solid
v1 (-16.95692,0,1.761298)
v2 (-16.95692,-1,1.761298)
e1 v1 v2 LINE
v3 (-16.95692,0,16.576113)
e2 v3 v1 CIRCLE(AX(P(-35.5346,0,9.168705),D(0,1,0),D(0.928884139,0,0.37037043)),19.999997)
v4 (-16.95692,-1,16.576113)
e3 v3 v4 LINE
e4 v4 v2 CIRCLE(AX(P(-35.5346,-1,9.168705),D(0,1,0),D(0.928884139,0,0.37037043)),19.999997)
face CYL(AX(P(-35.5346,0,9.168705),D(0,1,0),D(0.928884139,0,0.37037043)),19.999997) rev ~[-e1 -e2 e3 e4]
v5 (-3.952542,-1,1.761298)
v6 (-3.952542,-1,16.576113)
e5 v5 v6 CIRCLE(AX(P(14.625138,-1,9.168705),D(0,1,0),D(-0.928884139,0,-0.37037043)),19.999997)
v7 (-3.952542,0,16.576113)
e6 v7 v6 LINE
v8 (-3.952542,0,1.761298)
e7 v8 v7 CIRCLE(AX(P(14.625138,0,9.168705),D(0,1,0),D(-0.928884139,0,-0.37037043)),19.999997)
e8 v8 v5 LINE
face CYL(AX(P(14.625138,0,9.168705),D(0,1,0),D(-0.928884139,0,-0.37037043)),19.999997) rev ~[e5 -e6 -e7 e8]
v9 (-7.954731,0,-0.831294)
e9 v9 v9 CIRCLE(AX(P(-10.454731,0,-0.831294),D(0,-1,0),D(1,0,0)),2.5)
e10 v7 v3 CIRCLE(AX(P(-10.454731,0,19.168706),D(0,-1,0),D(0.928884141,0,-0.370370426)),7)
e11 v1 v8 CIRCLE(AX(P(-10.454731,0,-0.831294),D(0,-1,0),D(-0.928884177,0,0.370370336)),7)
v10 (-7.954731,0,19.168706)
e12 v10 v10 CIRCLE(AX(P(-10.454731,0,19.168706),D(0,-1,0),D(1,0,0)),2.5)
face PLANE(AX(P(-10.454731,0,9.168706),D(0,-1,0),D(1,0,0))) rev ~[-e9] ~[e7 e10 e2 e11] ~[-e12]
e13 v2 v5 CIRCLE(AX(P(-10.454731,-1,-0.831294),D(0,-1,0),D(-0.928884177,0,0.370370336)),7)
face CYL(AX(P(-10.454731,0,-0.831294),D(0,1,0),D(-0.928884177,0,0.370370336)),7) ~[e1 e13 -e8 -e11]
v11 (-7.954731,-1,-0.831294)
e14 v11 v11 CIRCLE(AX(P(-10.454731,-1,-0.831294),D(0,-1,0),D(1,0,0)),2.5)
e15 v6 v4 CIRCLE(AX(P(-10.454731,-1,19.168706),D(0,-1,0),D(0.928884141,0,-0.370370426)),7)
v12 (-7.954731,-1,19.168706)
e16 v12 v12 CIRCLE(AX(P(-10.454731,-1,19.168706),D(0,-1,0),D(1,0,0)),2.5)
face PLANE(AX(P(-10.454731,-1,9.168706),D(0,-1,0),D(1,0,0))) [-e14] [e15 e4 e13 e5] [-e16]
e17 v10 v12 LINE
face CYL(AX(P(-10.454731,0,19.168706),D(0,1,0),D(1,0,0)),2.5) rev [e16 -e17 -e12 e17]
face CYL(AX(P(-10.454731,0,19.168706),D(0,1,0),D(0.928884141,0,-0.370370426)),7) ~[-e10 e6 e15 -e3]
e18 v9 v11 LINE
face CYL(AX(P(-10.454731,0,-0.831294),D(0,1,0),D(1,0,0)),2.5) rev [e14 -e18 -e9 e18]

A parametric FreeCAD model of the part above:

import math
import FreeCAD as App
import Part
import Sketcher
from FreeCAD import Vector

doc = App.newDocument("Part")
params = doc.addObject("Spreadsheet::Sheet", "Params")
for row, (alias, value) in enumerate([
    ("sketch1_diameter", "5 mm"),
    ("sketch1_radius", "7 mm"),
    ("pad1_length", "1 mm"),
], start=1):
    params.set(f"A{row}", alias)
    params.set(f"B{row}", "=" + value)
    params.setAlias(f"B{row}", alias)

body = doc.addObject("PartDesign::Body", "Body")

# Sketch on XZ plane
sketch1 = doc.addObject("Sketcher::SketchObject", "Sketch")
body.addObject(sketch1)
sketch1.AttachmentSupport = (doc.XZ_Plane, [""])
sketch1.MapMode = "FlatFace"
sketch1.addGeometry(Part.ArcOfCircle(Part.Circle(Vector(14.6, 9.2, 0), Vector(0, 0, 1), 20), math.radians(158), math.radians(202)), False)
sketch1.addGeometry(Part.ArcOfCircle(Part.Circle(Vector(-10.5, 19.2, 0), Vector(0, 0, 1), 7), math.radians(-22), math.radians(202)), False)
sketch1.addGeometry(Part.ArcOfCircle(Part.Circle(Vector(-35.5, 9.2, 0), Vector(0, 0, 1), 20), math.radians(-22), math.radians(22)), False)
sketch1.addGeometry(Part.ArcOfCircle(Part.Circle(Vector(-10.5, -0.8, 0), Vector(0, 0, 1), 7), math.radians(158), math.radians(382)), False)
sketch1.addGeometry(Part.Circle(Vector(-10.5, -0.8, 0), Vector(0, 0, 1), 2.5), False)
sketch1.addGeometry(Part.Circle(Vector(-10.5, 19.2, 0), Vector(0, 0, 1), 2.5), False)
sketch1.addConstraint(Sketcher.Constraint("Tangent", 0, 1, 1, 1))
sketch1.addConstraint(Sketcher.Constraint("Tangent", 1, 2, 2, 2))
sketch1.addConstraint(Sketcher.Constraint("Tangent", 2, 1, 3, 1))
sketch1.addConstraint(Sketcher.Constraint("Tangent", 3, 2, 0, 2))
sketch1.addConstraint(Sketcher.Constraint("Coincident", 4, 3, 3, 3))
sketch1.addConstraint(Sketcher.Constraint("Coincident", 5, 3, 1, 3))
sketch1.addConstraint(Sketcher.Constraint("Equal", 0, 2))
sketch1.addConstraint(Sketcher.Constraint("Equal", 1, 3))
sketch1.addConstraint(Sketcher.Constraint("Equal", 4, 5))
sketch1.addConstraint(Sketcher.Constraint("Horizontal", 0, 3, 2, 3))
sketch1.addConstraint(Sketcher.Constraint("Diameter", 4, 5.0))
sketch1.addConstraint(Sketcher.Constraint("Radius", 1, 7.0))
sketch1.addConstraint(Sketcher.Constraint("DistanceY", 0, 3, 1, 3, 10.0))
sketch1.addConstraint(Sketcher.Constraint("Radius", 0, 19.999997))
sketch1.addConstraint(Sketcher.Constraint("DistanceX", 2, 3, -1, 1, 35.5346))
sketch1.addConstraint(Sketcher.Constraint("DistanceY", -1, 1, 0, 3, 9.168705))
sketch1.setExpression("Constraints[10]", "Params.sketch1_diameter")
sketch1.setExpression("Constraints[11]", "Params.sketch1_radius")
pad1 = doc.addObject("PartDesign::Pad", "Pad")
body.addObject(pad1)
pad1.Profile = sketch1
pad1.setExpression("Length", "Params.pad1_length")

doc.recompute()
